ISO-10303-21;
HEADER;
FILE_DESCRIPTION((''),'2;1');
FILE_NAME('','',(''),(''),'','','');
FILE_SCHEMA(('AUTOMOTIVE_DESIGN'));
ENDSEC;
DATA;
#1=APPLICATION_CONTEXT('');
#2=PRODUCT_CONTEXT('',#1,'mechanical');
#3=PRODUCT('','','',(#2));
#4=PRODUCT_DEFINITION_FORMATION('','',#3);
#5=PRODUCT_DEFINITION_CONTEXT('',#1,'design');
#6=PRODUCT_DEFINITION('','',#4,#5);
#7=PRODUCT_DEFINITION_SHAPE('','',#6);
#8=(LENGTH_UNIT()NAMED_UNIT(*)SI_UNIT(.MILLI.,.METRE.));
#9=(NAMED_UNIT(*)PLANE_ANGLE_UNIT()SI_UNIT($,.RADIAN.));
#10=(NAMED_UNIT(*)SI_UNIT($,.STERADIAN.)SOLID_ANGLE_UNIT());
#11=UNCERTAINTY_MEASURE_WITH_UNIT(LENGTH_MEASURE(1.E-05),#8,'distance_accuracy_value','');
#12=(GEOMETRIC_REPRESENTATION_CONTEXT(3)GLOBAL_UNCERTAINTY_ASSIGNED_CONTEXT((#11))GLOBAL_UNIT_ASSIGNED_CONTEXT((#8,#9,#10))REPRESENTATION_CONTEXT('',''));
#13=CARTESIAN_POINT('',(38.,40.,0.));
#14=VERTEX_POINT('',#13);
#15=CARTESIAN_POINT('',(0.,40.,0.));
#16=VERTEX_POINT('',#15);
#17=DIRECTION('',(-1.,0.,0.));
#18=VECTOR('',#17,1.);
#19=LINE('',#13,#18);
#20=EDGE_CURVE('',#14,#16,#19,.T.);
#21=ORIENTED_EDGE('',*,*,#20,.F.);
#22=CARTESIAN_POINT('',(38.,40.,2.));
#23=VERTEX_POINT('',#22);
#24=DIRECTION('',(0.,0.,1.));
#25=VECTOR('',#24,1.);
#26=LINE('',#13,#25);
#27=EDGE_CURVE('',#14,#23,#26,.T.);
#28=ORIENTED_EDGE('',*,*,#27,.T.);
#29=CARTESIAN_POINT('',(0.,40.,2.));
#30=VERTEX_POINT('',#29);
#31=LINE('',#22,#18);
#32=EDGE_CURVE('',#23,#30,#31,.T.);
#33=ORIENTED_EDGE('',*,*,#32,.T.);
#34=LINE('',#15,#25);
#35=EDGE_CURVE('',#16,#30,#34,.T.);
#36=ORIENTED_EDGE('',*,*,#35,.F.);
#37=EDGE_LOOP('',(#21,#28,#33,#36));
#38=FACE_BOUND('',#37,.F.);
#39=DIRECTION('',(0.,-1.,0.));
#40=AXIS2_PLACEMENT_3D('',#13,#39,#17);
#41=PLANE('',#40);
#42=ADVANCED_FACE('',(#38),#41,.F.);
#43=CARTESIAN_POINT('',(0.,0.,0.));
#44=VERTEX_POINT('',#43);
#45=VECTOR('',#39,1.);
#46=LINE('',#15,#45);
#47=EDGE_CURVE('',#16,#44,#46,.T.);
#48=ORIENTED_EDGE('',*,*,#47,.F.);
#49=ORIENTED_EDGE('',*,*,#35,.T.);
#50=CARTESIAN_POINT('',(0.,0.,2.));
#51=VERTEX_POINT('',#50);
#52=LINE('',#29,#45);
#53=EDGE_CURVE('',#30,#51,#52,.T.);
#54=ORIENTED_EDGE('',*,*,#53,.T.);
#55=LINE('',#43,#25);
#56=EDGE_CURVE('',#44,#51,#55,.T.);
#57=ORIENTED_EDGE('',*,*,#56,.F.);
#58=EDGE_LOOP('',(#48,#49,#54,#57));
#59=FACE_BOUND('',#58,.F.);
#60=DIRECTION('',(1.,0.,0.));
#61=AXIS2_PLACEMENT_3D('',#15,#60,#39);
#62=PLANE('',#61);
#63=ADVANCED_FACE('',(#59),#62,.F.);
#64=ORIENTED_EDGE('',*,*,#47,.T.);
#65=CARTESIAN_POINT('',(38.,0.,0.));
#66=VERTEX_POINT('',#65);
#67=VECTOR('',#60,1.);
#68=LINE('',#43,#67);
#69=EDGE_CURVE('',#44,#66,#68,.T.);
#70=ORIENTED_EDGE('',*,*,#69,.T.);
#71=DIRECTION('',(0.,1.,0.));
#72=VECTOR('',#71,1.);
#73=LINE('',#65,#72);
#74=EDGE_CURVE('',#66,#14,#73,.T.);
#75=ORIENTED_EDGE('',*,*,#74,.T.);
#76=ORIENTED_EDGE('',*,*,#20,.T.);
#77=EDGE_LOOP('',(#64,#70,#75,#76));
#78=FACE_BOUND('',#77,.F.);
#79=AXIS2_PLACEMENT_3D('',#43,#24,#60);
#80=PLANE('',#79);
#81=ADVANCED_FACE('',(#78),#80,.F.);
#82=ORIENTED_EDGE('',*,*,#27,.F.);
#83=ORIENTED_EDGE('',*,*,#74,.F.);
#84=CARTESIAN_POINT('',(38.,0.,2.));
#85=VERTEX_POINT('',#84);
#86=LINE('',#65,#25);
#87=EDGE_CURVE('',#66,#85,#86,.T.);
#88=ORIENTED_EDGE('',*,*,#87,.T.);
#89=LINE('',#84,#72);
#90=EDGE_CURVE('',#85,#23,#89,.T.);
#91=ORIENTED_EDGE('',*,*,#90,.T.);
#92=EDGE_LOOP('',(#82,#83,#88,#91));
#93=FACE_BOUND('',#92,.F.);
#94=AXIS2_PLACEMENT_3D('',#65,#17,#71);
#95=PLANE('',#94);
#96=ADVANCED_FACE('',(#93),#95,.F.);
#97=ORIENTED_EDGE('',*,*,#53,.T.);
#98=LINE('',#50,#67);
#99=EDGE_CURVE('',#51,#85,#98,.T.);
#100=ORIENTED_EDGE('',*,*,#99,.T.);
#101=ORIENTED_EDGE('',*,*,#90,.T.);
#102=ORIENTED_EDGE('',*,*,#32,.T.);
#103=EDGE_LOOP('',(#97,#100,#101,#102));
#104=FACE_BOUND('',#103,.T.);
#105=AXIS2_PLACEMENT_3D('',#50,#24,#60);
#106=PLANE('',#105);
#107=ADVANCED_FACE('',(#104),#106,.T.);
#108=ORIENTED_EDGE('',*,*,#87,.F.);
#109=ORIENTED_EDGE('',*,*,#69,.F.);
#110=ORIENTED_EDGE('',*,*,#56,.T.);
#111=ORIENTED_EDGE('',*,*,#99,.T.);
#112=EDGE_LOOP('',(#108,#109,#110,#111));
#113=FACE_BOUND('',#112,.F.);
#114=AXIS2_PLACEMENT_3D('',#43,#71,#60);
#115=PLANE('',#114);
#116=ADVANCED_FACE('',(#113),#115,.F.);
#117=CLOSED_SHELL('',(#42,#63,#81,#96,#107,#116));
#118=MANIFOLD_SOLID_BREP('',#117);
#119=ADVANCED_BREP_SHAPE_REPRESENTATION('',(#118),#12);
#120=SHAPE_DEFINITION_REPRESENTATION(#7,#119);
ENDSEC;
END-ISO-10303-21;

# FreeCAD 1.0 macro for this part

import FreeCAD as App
import Part
import Sketcher
from FreeCAD import Vector


def add_polygon(sketch, points):
    """Adds a closed chain of lines whose ends are joined by coincident constraints."""
    first, n = sketch.GeometryCount, len(points)
    for a, b in zip(points, points[1:] + points[:1]):
        sketch.addGeometry(Part.LineSegment(App.Vector(*a, 0), App.Vector(*b, 0)), False)
    for i in range(n):
        sketch.addConstraint(Sketcher.Constraint("Coincident", first + i, 2, first + (i + 1) % n, 1))

doc = App.newDocument("Part")
body = doc.addObject("PartDesign::Body", "Body")

# Sketch on XY plane
sketch1 = doc.addObject("Sketcher::SketchObject", "Sketch")
body.addObject(sketch1)
sketch1.AttachmentSupport = (doc.XY_Plane, [""])
sketch1.MapMode = "FlatFace"
add_polygon(sketch1, [(0, 40), (0, 0), (38, 0), (38, 40)])  # lines 0-3
sketch1.addConstraint(Sketcher.Constraint("Vertical", 0))
sketch1.addConstraint(Sketcher.Constraint("Horizontal", 1))
sketch1.addConstraint(Sketcher.Constraint("Vertical", 2))
sketch1.addConstraint(Sketcher.Constraint("Horizontal", 3))
sketch1.addConstraint(Sketcher.Constraint("Coincident", 0, 2, -1, 1))
sketch1.addConstraint(Sketcher.Constraint("DistanceX", 1, 1, 1, 2, 38.0))
sketch1.addConstraint(Sketcher.Constraint("DistanceY", 0, 2, 0, 1, 40.0))
pad1 = doc.addObject("PartDesign::Pad", "Pad")
body.addObject(pad1)
pad1.Profile = sketch1
pad1.Length = 2

doc.recompute()
